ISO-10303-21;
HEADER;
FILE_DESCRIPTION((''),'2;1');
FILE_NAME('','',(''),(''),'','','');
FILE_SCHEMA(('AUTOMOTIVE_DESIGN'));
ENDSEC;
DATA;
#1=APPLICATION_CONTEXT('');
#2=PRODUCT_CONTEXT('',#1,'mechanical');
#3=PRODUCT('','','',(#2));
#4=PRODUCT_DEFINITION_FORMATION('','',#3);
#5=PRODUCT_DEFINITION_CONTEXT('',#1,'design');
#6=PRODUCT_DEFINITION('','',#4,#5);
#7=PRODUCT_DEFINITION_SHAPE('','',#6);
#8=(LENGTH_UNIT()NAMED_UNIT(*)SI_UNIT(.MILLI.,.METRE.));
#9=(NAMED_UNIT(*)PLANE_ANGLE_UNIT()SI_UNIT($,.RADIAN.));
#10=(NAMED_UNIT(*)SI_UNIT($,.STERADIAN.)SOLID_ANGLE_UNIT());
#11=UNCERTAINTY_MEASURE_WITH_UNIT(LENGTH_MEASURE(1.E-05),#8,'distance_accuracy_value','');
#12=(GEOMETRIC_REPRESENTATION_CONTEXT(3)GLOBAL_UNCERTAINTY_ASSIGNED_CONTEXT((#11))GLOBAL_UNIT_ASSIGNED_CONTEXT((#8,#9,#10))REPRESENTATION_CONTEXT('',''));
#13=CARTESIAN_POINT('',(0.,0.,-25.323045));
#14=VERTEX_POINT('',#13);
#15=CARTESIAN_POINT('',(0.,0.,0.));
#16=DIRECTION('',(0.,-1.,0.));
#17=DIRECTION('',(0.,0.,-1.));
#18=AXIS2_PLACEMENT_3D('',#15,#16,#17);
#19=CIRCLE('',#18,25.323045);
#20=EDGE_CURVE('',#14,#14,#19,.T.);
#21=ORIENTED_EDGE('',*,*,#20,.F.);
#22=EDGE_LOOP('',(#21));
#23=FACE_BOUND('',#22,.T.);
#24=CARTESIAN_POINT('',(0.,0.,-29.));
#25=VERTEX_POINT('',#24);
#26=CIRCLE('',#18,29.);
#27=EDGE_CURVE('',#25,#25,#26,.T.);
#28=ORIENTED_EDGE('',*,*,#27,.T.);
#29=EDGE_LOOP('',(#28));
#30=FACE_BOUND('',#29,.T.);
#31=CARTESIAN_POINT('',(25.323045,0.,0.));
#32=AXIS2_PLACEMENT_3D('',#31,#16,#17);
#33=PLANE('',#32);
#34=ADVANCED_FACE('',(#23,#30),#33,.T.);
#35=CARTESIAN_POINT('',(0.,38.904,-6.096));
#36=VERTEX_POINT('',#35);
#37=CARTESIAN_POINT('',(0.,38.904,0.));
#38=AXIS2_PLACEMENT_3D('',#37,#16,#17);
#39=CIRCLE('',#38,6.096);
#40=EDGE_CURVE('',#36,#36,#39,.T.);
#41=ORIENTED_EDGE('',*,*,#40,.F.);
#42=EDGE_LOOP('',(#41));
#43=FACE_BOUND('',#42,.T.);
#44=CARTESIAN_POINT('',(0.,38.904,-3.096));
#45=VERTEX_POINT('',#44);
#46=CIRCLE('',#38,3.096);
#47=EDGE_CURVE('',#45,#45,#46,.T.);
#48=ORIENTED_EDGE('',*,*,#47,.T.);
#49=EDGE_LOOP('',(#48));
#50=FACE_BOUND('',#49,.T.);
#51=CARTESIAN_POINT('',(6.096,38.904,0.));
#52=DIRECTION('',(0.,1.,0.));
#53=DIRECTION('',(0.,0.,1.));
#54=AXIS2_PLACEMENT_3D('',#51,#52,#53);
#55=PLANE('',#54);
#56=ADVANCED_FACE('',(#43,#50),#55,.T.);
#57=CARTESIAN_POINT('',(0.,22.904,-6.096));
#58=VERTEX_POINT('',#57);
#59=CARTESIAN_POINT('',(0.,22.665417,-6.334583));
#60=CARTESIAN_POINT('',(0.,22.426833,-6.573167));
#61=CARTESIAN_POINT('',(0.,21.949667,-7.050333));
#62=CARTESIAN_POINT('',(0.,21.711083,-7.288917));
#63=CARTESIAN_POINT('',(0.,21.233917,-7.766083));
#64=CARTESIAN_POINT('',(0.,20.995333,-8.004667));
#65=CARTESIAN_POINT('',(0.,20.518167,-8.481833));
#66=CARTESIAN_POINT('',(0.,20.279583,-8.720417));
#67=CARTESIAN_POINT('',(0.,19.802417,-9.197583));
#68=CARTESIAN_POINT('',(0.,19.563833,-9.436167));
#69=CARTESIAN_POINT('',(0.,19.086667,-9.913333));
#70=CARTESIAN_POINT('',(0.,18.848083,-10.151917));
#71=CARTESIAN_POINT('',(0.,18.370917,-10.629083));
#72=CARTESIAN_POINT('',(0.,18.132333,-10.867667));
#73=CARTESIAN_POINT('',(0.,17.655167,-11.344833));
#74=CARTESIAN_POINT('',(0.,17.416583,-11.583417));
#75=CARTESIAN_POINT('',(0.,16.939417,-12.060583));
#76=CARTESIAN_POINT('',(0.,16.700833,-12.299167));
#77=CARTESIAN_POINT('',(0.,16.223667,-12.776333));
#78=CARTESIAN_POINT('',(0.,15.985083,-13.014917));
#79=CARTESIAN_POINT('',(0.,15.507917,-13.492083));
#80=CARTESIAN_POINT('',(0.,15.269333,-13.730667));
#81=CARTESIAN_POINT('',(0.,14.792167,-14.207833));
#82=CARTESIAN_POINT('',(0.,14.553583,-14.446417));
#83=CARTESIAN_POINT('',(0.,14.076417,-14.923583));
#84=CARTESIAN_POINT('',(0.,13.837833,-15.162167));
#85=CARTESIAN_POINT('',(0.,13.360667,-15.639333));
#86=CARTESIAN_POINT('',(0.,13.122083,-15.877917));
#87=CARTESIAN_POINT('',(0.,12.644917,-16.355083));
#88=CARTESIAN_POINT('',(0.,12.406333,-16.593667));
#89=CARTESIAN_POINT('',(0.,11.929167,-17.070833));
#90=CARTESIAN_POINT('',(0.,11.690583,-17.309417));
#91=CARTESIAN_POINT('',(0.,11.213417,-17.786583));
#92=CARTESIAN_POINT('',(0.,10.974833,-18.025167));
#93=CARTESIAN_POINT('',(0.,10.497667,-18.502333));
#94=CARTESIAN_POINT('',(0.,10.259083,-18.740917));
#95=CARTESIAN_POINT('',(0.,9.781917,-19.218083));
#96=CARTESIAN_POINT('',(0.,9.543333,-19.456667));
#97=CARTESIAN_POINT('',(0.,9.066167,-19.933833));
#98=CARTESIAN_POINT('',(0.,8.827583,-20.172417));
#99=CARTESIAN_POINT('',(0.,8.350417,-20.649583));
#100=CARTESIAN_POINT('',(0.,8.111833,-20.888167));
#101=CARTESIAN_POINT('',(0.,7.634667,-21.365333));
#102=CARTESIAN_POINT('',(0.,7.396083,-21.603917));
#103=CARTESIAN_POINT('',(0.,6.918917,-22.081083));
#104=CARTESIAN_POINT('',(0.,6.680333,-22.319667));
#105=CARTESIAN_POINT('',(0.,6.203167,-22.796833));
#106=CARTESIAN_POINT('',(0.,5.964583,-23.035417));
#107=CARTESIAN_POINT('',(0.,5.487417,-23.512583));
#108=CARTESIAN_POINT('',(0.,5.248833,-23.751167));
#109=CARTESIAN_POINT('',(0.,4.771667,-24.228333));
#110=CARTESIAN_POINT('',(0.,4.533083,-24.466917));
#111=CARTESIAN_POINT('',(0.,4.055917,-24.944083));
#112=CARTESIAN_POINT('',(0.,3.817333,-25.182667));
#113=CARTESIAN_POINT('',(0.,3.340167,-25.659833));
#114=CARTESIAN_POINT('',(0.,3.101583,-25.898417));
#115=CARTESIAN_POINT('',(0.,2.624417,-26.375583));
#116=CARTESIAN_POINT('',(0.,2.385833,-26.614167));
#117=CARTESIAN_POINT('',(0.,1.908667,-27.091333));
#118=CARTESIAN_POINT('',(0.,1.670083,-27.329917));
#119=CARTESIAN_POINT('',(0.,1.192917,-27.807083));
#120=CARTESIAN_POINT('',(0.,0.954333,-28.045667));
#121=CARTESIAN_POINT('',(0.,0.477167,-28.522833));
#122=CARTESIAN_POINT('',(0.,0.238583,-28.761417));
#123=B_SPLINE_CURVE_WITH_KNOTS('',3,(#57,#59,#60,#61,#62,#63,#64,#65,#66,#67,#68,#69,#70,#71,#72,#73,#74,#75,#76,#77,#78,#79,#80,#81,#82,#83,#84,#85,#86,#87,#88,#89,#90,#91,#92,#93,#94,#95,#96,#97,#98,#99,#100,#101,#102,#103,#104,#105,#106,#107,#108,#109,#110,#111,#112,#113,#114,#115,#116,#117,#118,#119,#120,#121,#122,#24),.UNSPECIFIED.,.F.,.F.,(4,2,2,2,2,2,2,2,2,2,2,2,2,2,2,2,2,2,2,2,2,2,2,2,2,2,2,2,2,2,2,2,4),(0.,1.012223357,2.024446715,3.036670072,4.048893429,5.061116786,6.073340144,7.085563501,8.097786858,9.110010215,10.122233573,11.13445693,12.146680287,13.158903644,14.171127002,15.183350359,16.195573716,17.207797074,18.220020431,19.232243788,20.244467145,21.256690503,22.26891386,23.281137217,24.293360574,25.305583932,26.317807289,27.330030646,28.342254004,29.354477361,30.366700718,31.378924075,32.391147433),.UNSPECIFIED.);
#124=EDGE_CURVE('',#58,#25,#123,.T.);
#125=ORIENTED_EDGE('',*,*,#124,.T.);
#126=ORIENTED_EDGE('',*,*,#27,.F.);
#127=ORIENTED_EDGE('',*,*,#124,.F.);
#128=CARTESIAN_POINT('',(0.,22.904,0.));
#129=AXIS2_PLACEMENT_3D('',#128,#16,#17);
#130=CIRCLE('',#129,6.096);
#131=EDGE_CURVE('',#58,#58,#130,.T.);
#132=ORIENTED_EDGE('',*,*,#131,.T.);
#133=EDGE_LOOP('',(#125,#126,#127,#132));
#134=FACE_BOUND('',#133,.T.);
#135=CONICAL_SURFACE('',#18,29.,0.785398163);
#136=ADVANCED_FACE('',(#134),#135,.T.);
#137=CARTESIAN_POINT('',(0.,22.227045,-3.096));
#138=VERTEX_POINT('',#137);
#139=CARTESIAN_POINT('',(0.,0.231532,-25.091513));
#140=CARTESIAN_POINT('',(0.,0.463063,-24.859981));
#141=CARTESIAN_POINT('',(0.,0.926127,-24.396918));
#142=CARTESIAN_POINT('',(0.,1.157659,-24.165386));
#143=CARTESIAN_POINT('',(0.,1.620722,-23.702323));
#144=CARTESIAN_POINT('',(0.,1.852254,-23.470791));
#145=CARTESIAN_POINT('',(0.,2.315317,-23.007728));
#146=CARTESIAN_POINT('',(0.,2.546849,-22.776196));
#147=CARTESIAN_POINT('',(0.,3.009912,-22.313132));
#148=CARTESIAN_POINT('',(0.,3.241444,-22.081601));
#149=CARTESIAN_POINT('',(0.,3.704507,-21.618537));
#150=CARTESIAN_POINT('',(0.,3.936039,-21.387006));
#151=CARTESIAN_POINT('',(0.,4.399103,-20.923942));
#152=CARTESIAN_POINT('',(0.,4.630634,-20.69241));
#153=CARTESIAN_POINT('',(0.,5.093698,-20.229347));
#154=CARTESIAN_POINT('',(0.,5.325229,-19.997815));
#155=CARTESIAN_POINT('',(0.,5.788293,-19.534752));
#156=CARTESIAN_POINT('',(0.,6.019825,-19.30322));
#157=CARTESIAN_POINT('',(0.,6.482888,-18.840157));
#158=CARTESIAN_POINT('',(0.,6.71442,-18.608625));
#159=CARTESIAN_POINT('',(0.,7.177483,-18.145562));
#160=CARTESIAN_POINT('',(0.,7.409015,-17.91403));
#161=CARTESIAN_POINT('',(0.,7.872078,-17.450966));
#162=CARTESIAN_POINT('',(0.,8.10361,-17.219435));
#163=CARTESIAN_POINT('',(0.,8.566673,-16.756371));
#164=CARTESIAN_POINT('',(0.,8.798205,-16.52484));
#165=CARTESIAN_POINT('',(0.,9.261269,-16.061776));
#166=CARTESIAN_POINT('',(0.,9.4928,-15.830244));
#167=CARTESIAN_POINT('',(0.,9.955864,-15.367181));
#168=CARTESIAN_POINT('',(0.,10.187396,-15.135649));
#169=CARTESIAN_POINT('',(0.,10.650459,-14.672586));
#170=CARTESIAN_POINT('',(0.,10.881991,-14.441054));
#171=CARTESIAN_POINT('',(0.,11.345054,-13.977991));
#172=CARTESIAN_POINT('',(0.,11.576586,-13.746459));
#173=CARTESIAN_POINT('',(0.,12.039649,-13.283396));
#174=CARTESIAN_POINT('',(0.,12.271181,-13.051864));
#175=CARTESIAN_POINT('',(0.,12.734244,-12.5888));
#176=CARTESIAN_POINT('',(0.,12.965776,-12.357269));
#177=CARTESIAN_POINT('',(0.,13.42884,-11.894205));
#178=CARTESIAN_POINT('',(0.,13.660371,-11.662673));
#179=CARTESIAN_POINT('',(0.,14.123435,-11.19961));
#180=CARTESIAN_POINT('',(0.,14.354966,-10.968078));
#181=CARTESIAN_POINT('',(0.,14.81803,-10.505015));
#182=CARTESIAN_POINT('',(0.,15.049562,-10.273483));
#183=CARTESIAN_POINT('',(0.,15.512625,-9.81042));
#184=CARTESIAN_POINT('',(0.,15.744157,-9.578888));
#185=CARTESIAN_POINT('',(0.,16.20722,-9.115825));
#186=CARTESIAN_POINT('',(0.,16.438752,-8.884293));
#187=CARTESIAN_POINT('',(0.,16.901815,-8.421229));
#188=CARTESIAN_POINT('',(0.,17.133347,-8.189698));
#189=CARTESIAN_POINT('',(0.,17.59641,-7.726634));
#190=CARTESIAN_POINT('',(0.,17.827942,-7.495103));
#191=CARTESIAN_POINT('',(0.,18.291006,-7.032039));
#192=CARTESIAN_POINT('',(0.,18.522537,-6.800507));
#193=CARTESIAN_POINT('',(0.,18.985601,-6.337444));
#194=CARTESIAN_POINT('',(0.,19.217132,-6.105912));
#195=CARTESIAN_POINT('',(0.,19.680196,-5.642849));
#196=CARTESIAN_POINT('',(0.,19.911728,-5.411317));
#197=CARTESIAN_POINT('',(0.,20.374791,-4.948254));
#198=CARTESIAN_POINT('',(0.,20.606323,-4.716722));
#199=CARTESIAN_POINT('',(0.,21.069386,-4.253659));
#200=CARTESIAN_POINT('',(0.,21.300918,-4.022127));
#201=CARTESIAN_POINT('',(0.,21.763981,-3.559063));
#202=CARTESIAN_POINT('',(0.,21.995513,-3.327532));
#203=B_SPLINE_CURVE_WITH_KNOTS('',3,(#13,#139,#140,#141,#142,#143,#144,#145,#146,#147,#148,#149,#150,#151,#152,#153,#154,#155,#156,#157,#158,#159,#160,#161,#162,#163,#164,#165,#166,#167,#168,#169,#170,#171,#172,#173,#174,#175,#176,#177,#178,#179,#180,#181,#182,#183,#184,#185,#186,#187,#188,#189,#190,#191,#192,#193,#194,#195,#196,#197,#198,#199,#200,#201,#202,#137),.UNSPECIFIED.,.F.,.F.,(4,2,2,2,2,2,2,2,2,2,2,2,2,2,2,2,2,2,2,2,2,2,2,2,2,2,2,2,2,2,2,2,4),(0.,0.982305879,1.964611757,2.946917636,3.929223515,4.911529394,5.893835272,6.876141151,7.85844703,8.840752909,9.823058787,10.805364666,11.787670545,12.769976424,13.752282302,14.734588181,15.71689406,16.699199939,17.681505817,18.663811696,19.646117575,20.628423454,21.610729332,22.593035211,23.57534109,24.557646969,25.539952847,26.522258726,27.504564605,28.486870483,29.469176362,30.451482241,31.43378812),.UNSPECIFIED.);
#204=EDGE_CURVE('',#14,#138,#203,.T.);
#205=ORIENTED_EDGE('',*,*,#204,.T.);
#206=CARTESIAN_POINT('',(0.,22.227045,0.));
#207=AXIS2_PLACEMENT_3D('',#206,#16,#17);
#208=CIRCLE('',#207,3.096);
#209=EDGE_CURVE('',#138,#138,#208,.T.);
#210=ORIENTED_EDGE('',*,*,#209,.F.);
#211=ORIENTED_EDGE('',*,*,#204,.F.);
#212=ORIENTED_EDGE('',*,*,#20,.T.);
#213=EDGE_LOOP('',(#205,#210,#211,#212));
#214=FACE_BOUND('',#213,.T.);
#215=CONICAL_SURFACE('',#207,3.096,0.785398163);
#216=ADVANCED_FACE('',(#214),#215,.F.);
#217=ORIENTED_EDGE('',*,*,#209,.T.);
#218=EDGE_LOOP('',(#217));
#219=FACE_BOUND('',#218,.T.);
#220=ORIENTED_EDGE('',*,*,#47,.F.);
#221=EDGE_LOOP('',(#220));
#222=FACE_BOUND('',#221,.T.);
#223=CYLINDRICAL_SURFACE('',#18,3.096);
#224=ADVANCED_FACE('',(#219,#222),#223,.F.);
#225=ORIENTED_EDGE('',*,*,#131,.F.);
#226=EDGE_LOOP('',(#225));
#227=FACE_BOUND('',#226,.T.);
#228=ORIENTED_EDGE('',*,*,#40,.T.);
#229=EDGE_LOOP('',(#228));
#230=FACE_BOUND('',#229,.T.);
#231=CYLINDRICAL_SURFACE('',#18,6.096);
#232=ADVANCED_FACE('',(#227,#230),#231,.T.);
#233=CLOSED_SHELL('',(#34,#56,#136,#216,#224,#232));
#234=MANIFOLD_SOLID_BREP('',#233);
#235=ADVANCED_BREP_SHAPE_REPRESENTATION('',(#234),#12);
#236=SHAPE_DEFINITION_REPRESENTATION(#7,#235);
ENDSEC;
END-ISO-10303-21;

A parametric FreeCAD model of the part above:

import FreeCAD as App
import Part
import Sketcher
Q = App.Units.Quantity


def add_polygon(sketch, points):
    """Adds a closed chain of lines whose ends are joined by coincident constraints."""
    first, n = sketch.GeometryCount, len(points)
    for a, b in zip(points, points[1:] + points[:1]):
        sketch.addGeometry(Part.LineSegment(App.Vector(*a, 0), App.Vector(*b, 0)), False)
    for i in range(n):
        sketch.addConstraint(Sketcher.Constraint("Coincident", first + i, 2, first + (i + 1) % n, 1))

doc = App.newDocument("Part")
body = doc.addObject("PartDesign::Body", "Body")

# Sketch on XY plane
sketch1 = doc.addObject("Sketcher::SketchObject", "Sketch")
body.addObject(sketch1)
sketch1.AttachmentSupport = (doc.XY_Plane, [""])
sketch1.MapMode = "FlatFace"
add_polygon(sketch1, [(25.3, 0), (29, 0), (6.1, 22.9), (6.1, 38.9), (3.1, 38.9), (3.1, 22.2)])  # lines 0-5
sketch1.addConstraint([
    Sketcher.Constraint("Horizontal", 0),
    Sketcher.Constraint("Vertical", 2),
    Sketcher.Constraint("Horizontal", 3),
    Sketcher.Constraint("Vertical", 4),
    Sketcher.Constraint("PointOnObject", 0, 2, -1),
    Sketcher.Constraint("Parallel", 1, 5),
    Sketcher.Constraint("DistanceX", 3, 2, 3, 1, Q("3 mm")),
    Sketcher.Constraint("DistanceY", 2, 1, 2, 2, Q("16 mm")),
    Sketcher.Constraint("Angle", 1, Q("135 deg")),
    Sketcher.Constraint("DistanceX", -1, 1, 0, 2, Q("29 mm")),
    Sketcher.Constraint("DistanceX", -1, 1, 1, 2, Q("6.096 mm")),
    Sketcher.Constraint("Distance", 5, Q("31.433788 mm")),
])
revolution = doc.addObject("PartDesign::Revolution", "Revolution")
body.addObject(revolution)
revolution.Profile = sketch1
revolution.ReferenceAxis = (sketch1, ["V_Axis"])
revolution.Angle = 360

doc.recompute()
